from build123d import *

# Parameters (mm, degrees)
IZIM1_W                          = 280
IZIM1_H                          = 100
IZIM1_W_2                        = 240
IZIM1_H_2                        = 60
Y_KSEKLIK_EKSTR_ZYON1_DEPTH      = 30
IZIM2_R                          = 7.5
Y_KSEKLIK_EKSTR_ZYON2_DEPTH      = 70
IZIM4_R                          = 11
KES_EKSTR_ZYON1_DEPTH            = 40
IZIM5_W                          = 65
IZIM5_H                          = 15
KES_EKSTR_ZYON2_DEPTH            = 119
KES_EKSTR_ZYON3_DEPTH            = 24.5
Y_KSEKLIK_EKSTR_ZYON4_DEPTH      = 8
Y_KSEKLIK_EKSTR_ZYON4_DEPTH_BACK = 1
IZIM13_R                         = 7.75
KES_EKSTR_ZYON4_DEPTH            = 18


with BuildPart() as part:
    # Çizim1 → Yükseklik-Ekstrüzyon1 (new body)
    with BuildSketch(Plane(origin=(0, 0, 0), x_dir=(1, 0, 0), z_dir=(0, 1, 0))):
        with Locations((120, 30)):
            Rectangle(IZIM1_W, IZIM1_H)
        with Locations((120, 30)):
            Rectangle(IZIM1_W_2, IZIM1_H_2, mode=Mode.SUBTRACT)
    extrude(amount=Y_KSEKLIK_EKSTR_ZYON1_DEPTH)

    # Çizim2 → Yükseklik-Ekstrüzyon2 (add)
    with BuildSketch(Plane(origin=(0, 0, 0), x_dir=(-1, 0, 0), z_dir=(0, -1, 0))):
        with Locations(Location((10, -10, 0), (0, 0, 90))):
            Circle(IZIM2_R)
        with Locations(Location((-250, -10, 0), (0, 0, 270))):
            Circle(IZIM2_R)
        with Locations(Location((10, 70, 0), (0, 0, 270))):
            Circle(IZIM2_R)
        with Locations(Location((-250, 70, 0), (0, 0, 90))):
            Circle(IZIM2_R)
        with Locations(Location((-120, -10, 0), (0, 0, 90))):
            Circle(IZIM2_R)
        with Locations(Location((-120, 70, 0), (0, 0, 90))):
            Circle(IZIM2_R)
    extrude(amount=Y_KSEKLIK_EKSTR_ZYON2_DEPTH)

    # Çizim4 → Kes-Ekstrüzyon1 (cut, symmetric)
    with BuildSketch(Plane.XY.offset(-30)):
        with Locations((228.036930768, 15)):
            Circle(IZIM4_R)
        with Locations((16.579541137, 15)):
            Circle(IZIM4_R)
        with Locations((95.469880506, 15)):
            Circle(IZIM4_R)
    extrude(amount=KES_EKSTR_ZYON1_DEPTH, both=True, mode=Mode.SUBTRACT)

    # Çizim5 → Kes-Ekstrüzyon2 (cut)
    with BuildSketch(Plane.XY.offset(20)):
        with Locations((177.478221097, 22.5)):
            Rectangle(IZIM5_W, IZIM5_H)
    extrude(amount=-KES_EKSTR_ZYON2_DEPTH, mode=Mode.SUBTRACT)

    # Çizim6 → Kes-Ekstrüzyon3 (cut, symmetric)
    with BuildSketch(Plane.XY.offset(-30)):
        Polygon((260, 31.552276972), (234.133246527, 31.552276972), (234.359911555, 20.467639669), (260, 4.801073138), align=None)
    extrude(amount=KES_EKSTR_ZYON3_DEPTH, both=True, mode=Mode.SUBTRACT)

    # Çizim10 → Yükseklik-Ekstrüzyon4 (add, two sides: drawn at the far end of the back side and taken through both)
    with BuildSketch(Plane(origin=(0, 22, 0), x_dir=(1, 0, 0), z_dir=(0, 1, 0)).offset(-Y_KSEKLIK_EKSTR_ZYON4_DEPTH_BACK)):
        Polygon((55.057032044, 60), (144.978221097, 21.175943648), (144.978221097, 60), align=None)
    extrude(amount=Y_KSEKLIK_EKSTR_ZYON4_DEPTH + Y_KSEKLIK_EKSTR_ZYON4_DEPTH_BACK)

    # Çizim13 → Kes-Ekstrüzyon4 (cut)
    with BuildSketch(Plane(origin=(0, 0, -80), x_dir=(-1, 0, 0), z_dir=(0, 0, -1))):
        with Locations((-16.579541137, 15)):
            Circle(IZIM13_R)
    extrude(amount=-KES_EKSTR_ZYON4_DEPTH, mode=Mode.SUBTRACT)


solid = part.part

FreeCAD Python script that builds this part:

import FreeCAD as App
import Part
import Sketcher

V = App.Vector
Q = App.Units.Quantity


def add_polygon(sketch, points):
    """Adds a closed chain of lines whose ends are joined by coincident constraints."""
    first, n = sketch.GeometryCount, len(points)
    for a, b in zip(points, points[1:] + points[:1]):
        sketch.addGeometry(Part.LineSegment(App.Vector(*a, 0), App.Vector(*b, 0)), False)
    for i in range(n):
        sketch.addConstraint(Sketcher.Constraint("Coincident", first + i, 2, first + (i + 1) % n, 1))

doc = App.newDocument("Part")
body = doc.addObject("PartDesign::Body", "Body")

# Sketch on XZ plane
sketch1 = body.newObject("Sketcher::SketchObject", "Sketch")
sketch1.AttachmentSupport = (doc.getObject("XZ_Plane"), [""])
sketch1.MapMode = "FlatFace"
add_polygon(sketch1, [(-20, -80), (-20, 20), (260, 20), (260, -80)])  # lines 0-3
add_polygon(sketch1, [(240, 0), (0, 0), (0, -60), (240, -60)])  # lines 4-7
sketch1.addConstraint([
    Sketcher.Constraint("Vertical", 0),
    Sketcher.Constraint("Horizontal", 1),
    Sketcher.Constraint("Vertical", 2),
    Sketcher.Constraint("Horizontal", 3),
    Sketcher.Constraint("Horizontal", 4),
    Sketcher.Constraint("Vertical", 5),
    Sketcher.Constraint("Horizontal", 6),
    Sketcher.Constraint("Vertical", 7),
    Sketcher.Constraint("Coincident", 4, 2, -1, 1),
    Sketcher.Constraint("DistanceX", 1, 1, 1, 2, Q("280 mm")),
    Sketcher.Constraint("DistanceX", 4, 2, 4, 1, Q("240 mm")),
    Sketcher.Constraint("DistanceY", 0, 1, 0, 2, Q("100 mm")),
    Sketcher.Constraint("DistanceY", 5, 2, 5, 1, Q("60 mm")),
    Sketcher.Constraint("DistanceX", 0, 2, -1, 1, Q("20 mm")),
    Sketcher.Constraint("DistanceY", -1, 1, 0, 2, Q("20 mm")),
])
pad1 = body.newObject("PartDesign::Pad", "Pad")
pad1.Profile = sketch1
pad1.Length = 30
pad1.Reversed = True

# Sketch on XZ plane
sketch2 = body.newObject("Sketcher::SketchObject", "Sketch001")
sketch2.AttachmentSupport = (doc.getObject("XZ_Plane"), [""])
sketch2.MapMode = "FlatFace"
sketch2.addGeometry([
    Part.Circle(V(-10, 10, 0), V(0, 0, 1), 8),  # 0
    Part.Circle(V(250, 10, 0), V(0, 0, 1), 8),  # 1
    Part.Circle(V(-10, -70, 0), V(0, 0, 1), 8),  # 2
    Part.Circle(V(250, -70, 0), V(0, 0, 1), 8),  # 3
    Part.Circle(V(120, 10, 0), V(0, 0, 1), 8),  # 4
    Part.Circle(V(120, -70, 0), V(0, 0, 1), 8),  # 5
], False)
sketch2.addConstraint([
    Sketcher.Constraint("Equal", 0, 1),
    Sketcher.Constraint("Equal", 1, 2),
    Sketcher.Constraint("Equal", 2, 3),
    Sketcher.Constraint("Equal", 3, 4),
    Sketcher.Constraint("Equal", 4, 5),
    Sketcher.Constraint("Horizontal", 0, 3, 1, 3),
    Sketcher.Constraint("Horizontal", 2, 3, 3, 3),
    Sketcher.Constraint("Horizontal", 1, 3, 4, 3),
    Sketcher.Constraint("Horizontal", 3, 3, 5, 3),
    Sketcher.Constraint("Vertical", 0, 3, 2, 3),
    Sketcher.Constraint("Vertical", 1, 3, 3, 3),
    Sketcher.Constraint("Vertical", 4, 3, 5, 3),
    Sketcher.Constraint("Diameter", 0, Q("15 mm")),
    Sketcher.Constraint("DistanceX", 0, 3, -1, 1, Q("10 mm")),
    Sketcher.Constraint("DistanceY", -1, 1, 0, 3, Q("10 mm")),
    Sketcher.Constraint("DistanceX", -1, 1, 1, 3, Q("250 mm")),
    Sketcher.Constraint("DistanceY", 2, 3, -1, 1, Q("70 mm")),
    Sketcher.Constraint("DistanceX", -1, 1, 4, 3, Q("120 mm")),
])
pad2 = body.newObject("PartDesign::Pad", "Pad001")
pad2.Profile = sketch2
pad2.Length = 70

# Sketch on XY plane
sketch3 = body.newObject("Sketcher::SketchObject", "Sketch002")
sketch3.AttachmentSupport = (doc.getObject("XY_Plane"), [""])
sketch3.MapMode = "FlatFace"
sketch3.AttachmentOffset = App.Placement(V(0, 0, -30), App.Rotation())
sketch3.addGeometry([
    Part.Circle(V(228, 15, 0), V(0, 0, 1), 11),
    Part.Circle(V(17, 15, 0), V(0, 0, 1), 11),
    Part.Circle(V(95, 15, 0), V(0, 0, 1), 11),
], False)
sketch3.addConstraint([
    Sketcher.Constraint("Equal", 0, 1),
    Sketcher.Constraint("Equal", 1, 2),
    Sketcher.Constraint("Horizontal", 0, 3, 1, 3),
    Sketcher.Constraint("Horizontal", 1, 3, 2, 3),
    Sketcher.Constraint("Diameter", 0, Q("22 mm")),
    Sketcher.Constraint("DistanceY", -1, 1, 0, 3, Q("15 mm")),
    Sketcher.Constraint("DistanceX", -1, 1, 0, 3, Q("228.036931 mm")),
    Sketcher.Constraint("DistanceX", -1, 1, 1, 3, Q("16.579541 mm")),
    Sketcher.Constraint("DistanceX", -1, 1, 2, 3, Q("95.469881 mm")),
])
pocket1 = body.newObject("PartDesign::Pocket", "Pocket")
pocket1.Profile = sketch3
pocket1.Length = 80
pocket1.Midplane = True

# Sketch on XY plane
sketch4 = body.newObject("Sketcher::SketchObject", "Sketch003")
sketch4.AttachmentSupport = (doc.getObject("XY_Plane"), [""])
sketch4.MapMode = "FlatFace"
sketch4.AttachmentOffset = App.Placement(V(0, 0, 20), App.Rotation())
add_polygon(sketch4, [(145, 30), (145, 15), (210, 15), (210, 30)])  # lines 0-3
sketch4.addConstraint([
    Sketcher.Constraint("Vertical", 0),
    Sketcher.Constraint("Horizontal", 1),
    Sketcher.Constraint("Vertical", 2),
    Sketcher.Constraint("Horizontal", 3),
    Sketcher.Constraint("DistanceX", 1, 1, 1, 2, Q("65 mm")),
    Sketcher.Constraint("DistanceY", 0, 2, 0, 1, Q("15 mm")),
    Sketcher.Constraint("DistanceY", -1, 1, 0, 2, Q("15 mm")),
    Sketcher.Constraint("DistanceX", -1, 1, 0, 2, Q("144.978221 mm")),
])
pocket2 = body.newObject("PartDesign::Pocket", "Pocket001")
pocket2.Profile = sketch4
pocket2.Length = 119

# Sketch on XY plane
sketch5 = body.newObject("Sketcher::SketchObject", "Sketch004")
sketch5.AttachmentSupport = (doc.getObject("XY_Plane"), [""])
sketch5.MapMode = "FlatFace"
sketch5.AttachmentOffset = App.Placement(V(0, 0, -30), App.Rotation())
add_polygon(sketch5, [(260, 32), (234, 32), (234, 20), (260, 5)])  # lines 0-3
sketch5.addConstraint([
    Sketcher.Constraint("Horizontal", 0),
    Sketcher.Constraint("Vertical", 3),
    Sketcher.Constraint("DistanceX", -1, 1, 2, 2, Q("260 mm")),
    Sketcher.Constraint("DistanceX", 0, 2, 0, 1, Q("25.866753 mm")),
    Sketcher.Constraint("DistanceY", 3, 1, 3, 2, Q("26.751204 mm")),
    Sketcher.Constraint("DistanceX", -1, 1, 1, 2, Q("234.359912 mm")),
    Sketcher.Constraint("DistanceY", -1, 1, 1, 2, Q("20.46764 mm")),
    Sketcher.Constraint("Distance", 1, Q("11.086955 mm")),
])
pocket3 = body.newObject("PartDesign::Pocket", "Pocket002")
pocket3.Profile = sketch5
pocket3.Length = 49
pocket3.Midplane = True

# Sketch on XZ plane
sketch6 = body.newObject("Sketcher::SketchObject", "Sketch005")
sketch6.AttachmentSupport = (doc.getObject("XZ_Plane"), [""])
sketch6.MapMode = "FlatFace"
sketch6.AttachmentOffset = App.Placement(V(0, 0, -22), App.Rotation())
add_polygon(sketch6, [(55, -60), (145, -21), (145, -60)])  # lines 0-2
sketch6.addConstraint([
    Sketcher.Constraint("Vertical", 1),
    Sketcher.Constraint("Horizontal", 2),
    Sketcher.Constraint("DistanceY", 1, 2, -1, 1, Q("60 mm")),
    Sketcher.Constraint("DistanceX", 2, 2, 2, 1, Q("89.921189 mm")),
    Sketcher.Constraint("DistanceY", 1, 2, 1, 1, Q("38.824056 mm")),
    Sketcher.Constraint("DistanceX", -1, 1, 0, 2, Q("144.978221 mm")),
])
pad3 = body.newObject("PartDesign::Pad", "Pad002")
pad3.Profile = sketch6
pad3.Type = "TwoLengths"
pad3.Length = 8
pad3.Length2 = 1
pad3.Reversed = True

# Sketch on XY plane
sketch7 = body.newObject("Sketcher::SketchObject", "Sketch006")
sketch7.AttachmentSupport = (doc.getObject("XY_Plane"), [""])
sketch7.MapMode = "FlatFace"
sketch7.AttachmentOffset = App.Placement(V(0, 0, -80), App.Rotation())
sketch7.addGeometry(Part.Circle(V(17, 15, 0), V(0, 0, 1), 8), False)
sketch7.addConstraint([
    Sketcher.Constraint("Diameter", 0, Q("15.5 mm")),
    Sketcher.Constraint("DistanceY", -1, 1, 0, 3, Q("15 mm")),
    Sketcher.Constraint("DistanceX", -1, 1, 0, 3, Q("16.579541 mm")),
])
pocket4 = body.newObject("PartDesign::Pocket", "Pocket003")
pocket4.Profile = sketch7
pocket4.Length = 18
pocket4.Reversed = True

doc.recompute()
